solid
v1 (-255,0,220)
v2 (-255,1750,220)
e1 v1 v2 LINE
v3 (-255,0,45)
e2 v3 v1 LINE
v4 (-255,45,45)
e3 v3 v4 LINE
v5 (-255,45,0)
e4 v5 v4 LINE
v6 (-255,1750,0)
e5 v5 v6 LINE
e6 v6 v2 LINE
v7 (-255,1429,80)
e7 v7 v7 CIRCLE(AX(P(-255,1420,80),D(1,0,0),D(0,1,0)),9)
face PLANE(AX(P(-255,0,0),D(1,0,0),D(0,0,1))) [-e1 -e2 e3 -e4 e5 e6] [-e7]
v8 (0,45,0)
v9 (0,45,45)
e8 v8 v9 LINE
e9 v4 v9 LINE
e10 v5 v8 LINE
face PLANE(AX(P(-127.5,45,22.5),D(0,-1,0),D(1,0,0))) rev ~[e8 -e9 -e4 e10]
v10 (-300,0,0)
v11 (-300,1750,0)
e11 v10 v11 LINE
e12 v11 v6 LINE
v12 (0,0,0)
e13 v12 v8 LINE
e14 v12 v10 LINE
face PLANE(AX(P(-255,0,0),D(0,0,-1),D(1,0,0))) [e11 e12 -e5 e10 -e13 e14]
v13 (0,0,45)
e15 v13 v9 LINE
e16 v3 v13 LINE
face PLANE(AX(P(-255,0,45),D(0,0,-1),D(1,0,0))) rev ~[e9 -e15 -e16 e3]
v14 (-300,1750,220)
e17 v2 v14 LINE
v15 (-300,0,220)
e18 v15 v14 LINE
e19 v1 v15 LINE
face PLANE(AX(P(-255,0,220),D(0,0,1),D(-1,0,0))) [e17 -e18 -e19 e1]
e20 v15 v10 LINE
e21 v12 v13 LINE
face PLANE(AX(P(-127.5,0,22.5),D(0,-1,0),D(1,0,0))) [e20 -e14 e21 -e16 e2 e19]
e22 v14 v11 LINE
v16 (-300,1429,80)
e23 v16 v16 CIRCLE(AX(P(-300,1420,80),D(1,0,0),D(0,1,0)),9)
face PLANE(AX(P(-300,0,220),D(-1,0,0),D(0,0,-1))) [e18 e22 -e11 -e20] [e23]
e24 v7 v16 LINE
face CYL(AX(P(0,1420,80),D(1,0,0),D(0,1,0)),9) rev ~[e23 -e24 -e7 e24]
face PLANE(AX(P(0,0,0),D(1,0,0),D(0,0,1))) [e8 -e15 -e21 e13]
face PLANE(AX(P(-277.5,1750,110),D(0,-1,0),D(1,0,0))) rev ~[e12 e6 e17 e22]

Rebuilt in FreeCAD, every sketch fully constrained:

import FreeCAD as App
import Part
import Sketcher
Q = App.Units.Quantity


def add_polygon(sketch, points):
    """Adds a closed chain of lines whose ends are joined by coincident constraints."""
    first, n = sketch.GeometryCount, len(points)
    for a, b in zip(points, points[1:] + points[:1]):
        sketch.addGeometry(Part.LineSegment(App.Vector(*a, 0), App.Vector(*b, 0)), False)
    for i in range(n):
        sketch.addConstraint(Sketcher.Constraint("Coincident", first + i, 2, first + (i + 1) % n, 1))

doc = App.newDocument("Part")
params = doc.addObject("Spreadsheet::Sheet", "Params")
for row, (alias, value) in enumerate([
    ("sketch1_width", "45 mm"),
    ("sketch1_height", "220 mm"),
    ("pad1_length", "1750 mm"),
    ("sketch2_width", "255 mm"),
    ("sketch2_height", "45 mm"),
    ("pad2_length", "45 mm"),
    ("sketch3_diameter", "18 mm"),
], start=1):
    params.set(f"A{row}", alias)
    params.set(f"B{row}", "=" + value)
    params.setAlias(f"B{row}", alias)

body = doc.addObject("PartDesign::Body", "Body")

# Sketch on XZ plane
sketch1 = body.newObject("Sketcher::SketchObject", "Sketch")
sketch1.AttachmentSupport = (doc.getObject("XZ_Plane"), [""])
sketch1.MapMode = "FlatFace"
add_polygon(sketch1, [(-300, 0), (-255, 0), (-255, 220), (-300, 220)])  # lines 0-3
sketch1.addConstraint([
    Sketcher.Constraint("Horizontal", 0),
    Sketcher.Constraint("Vertical", 1),
    Sketcher.Constraint("Horizontal", 2),
    Sketcher.Constraint("Vertical", 3),
    Sketcher.Constraint("PointOnObject", 0, 2, -1),
    Sketcher.Constraint("DistanceX", 0, 1, 0, 2, Q("45 mm")),
    Sketcher.Constraint("DistanceY", 1, 1, 1, 2, Q("220 mm")),
    Sketcher.Constraint("DistanceX", 0, 2, -1, 1, Q("255 mm")),
])
sketch1.setExpression("Constraints[9]", "Params.sketch1_width")
sketch1.setExpression("Constraints[10]", "Params.sketch1_height")
pad1 = body.newObject("PartDesign::Pad", "Pad")
pad1.Profile = sketch1
pad1.setExpression("Length", "Params.pad1_length")
pad1.Reversed = True

# Sketch on XZ plane
sketch2 = body.newObject("Sketcher::SketchObject", "Sketch001")
sketch2.AttachmentSupport = (doc.getObject("XZ_Plane"), [""])
sketch2.MapMode = "FlatFace"
add_polygon(sketch2, [(-255, 45), (-255, 0), (0, 0), (0, 45)])  # lines 0-3
sketch2.addConstraint([
    Sketcher.Constraint("Vertical", 0),
    Sketcher.Constraint("Horizontal", 1),
    Sketcher.Constraint("Vertical", 2),
    Sketcher.Constraint("Horizontal", 3),
    Sketcher.Constraint("Coincident", 1, 2, -1, 1),
    Sketcher.Constraint("DistanceX", 1, 1, 1, 2, Q("255 mm")),
    Sketcher.Constraint("DistanceY", 0, 2, 0, 1, Q("45 mm")),
])
sketch2.setExpression("Constraints[9]", "Params.sketch2_width")
sketch2.setExpression("Constraints[10]", "Params.sketch2_height")
pad2 = body.newObject("PartDesign::Pad", "Pad001")
pad2.Profile = sketch2
pad2.setExpression("Length", "Params.pad2_length")
pad2.Reversed = True

# Sketch on YZ plane
sketch3 = body.newObject("Sketcher::SketchObject", "Sketch002")
sketch3.AttachmentSupport = (doc.getObject("YZ_Plane"), [""])
sketch3.MapMode = "FlatFace"
sketch3.addGeometry(Part.Circle(App.Vector(1420, 80, 0), App.Vector(0, 0, 1), 9), False)
sketch3.addConstraint([
    Sketcher.Constraint("Diameter", 0, Q("18 mm")),
    Sketcher.Constraint("DistanceX", -1, 1, 0, 3, Q("1420 mm")),
    Sketcher.Constraint("DistanceY", -1, 1, 0, 3, Q("80 mm")),
])
sketch3.setExpression("Constraints[0]", "Params.sketch3_diameter")
pocket1 = body.newObject("PartDesign::Pocket", "Pocket")
pocket1.Profile = sketch3
pocket1.Type = "ThroughAll"

doc.recompute()
